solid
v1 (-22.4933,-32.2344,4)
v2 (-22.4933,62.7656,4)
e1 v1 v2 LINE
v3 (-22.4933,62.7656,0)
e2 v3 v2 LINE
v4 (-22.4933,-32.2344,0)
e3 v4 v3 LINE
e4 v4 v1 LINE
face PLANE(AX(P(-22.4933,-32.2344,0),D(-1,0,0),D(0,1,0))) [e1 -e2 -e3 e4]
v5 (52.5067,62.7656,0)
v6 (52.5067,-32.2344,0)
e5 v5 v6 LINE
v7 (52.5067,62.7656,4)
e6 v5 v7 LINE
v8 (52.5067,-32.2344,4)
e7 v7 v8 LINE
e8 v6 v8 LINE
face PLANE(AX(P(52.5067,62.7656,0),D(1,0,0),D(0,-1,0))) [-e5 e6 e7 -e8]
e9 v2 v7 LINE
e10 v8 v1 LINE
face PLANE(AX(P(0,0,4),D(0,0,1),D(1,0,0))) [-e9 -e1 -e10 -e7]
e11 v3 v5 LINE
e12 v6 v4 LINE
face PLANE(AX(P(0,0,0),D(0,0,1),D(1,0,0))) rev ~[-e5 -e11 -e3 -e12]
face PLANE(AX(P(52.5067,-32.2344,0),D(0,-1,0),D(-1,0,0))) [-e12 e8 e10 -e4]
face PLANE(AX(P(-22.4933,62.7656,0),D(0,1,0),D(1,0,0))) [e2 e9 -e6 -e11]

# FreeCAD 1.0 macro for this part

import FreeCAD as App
import Part
import Sketcher

V = App.Vector
Q = App.Units.Quantity


def add_polygon(sketch, points):
    """Adds a closed chain of lines whose ends are joined by coincident constraints."""
    first, n = sketch.GeometryCount, len(points)
    for a, b in zip(points, points[1:] + points[:1]):
        sketch.addGeometry(Part.LineSegment(App.Vector(*a, 0), App.Vector(*b, 0)), False)
    for i in range(n):
        sketch.addConstraint(Sketcher.Constraint("Coincident", first + i, 2, first + (i + 1) % n, 1))

doc = App.newDocument("Part")
params = doc.addObject("Spreadsheet::Sheet", "Params")
for row, (alias, value) in enumerate([
    ("sketch1_width", "75 mm"),
    ("sketch1_height", "95 mm"),
    ("pad1_length", "4 mm"),
], start=1):
    params.set(f"A{row}", alias)
    params.set(f"B{row}", "=" + value)
    params.setAlias(f"B{row}", alias)

body = doc.addObject("PartDesign::Body", "Body")

# Sketch on XY plane
sketch1 = body.newObject("Sketcher::SketchObject", "Sketch")
sketch1.AttachmentSupport = (doc.getObject("XY_Plane"), [""])
sketch1.MapMode = "FlatFace"
add_polygon(sketch1, [(-22, -32), (53, -32), (53, 63), (-22, 63)])  # lines 0-3
sketch1.addConstraint(Sketcher.Constraint("Horizontal", 0))
sketch1.addConstraint(Sketcher.Constraint("Vertical", 1))
sketch1.addConstraint(Sketcher.Constraint("Horizontal", 2))
sketch1.addConstraint(Sketcher.Constraint("Vertical", 3))
sketch1.addConstraint(Sketcher.Constraint("DistanceX", 0, 1, 0, 2, Q("75 mm")))
sketch1.addConstraint(Sketcher.Constraint("DistanceY", 1, 1, 1, 2, Q("95 mm")))
sketch1.addConstraint(Sketcher.Constraint("DistanceX", -1, 1, 0, 2, Q("52.5067 mm")))
sketch1.addConstraint(Sketcher.Constraint("DistanceY", 0, 2, -1, 1, Q("32.2344 mm")))
sketch1.setExpression("Constraints[8]", "Params.sketch1_width")
sketch1.setExpression("Constraints[9]", "Params.sketch1_height")
pad1 = body.newObject("PartDesign::Pad", "Pad")
pad1.Profile = sketch1
pad1.setExpression("Length", "Params.pad1_length")

doc.recompute()
